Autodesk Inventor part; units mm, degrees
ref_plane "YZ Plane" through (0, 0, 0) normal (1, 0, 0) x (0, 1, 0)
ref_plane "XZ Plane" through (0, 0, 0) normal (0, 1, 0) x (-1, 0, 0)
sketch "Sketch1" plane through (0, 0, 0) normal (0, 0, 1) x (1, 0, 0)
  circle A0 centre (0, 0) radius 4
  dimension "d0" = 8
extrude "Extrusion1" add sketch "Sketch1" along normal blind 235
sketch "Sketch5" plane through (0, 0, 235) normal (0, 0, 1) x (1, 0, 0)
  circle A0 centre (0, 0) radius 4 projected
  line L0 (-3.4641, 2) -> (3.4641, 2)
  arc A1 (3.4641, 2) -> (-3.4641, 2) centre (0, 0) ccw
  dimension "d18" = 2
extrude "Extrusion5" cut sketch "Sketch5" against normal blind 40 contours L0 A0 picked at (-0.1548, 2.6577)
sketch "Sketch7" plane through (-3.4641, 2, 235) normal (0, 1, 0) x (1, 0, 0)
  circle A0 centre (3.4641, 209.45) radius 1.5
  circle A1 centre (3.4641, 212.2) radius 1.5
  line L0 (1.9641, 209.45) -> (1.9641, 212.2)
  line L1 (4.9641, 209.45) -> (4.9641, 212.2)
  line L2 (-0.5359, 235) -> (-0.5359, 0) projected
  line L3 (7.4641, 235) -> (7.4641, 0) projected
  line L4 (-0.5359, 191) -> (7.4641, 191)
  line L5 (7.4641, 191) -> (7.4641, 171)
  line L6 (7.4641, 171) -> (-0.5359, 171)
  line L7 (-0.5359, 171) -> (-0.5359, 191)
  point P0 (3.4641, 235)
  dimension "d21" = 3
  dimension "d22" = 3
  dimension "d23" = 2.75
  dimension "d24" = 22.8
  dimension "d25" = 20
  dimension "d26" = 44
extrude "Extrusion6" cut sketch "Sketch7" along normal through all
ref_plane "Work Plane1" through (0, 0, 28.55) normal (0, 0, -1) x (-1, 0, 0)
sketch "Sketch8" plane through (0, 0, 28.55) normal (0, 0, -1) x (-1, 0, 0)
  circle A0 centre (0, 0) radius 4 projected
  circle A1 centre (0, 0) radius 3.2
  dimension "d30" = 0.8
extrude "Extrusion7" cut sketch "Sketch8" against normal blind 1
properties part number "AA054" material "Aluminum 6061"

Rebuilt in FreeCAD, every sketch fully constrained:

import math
import FreeCAD as App
import Part
import Sketcher


def add_polygon(sketch, points):
    """Adds a closed chain of lines whose ends are joined by coincident constraints."""
    first, n = sketch.GeometryCount, len(points)
    for a, b in zip(points, points[1:] + points[:1]):
        sketch.addGeometry(Part.LineSegment(App.Vector(*a, 0), App.Vector(*b, 0)), False)
    for i in range(n):
        sketch.addConstraint(Sketcher.Constraint("Coincident", first + i, 2, first + (i + 1) % n, 1))

doc = App.newDocument("Part")
body = doc.addObject("PartDesign::Body", "Body")

# Sketch on XY plane
sketch1 = body.newObject("Sketcher::SketchObject", "Sketch")
sketch1.AttachmentSupport = (doc.getObject("XY_Plane"), [""])
sketch1.MapMode = "FlatFace"
sketch1.addGeometry(Part.Circle(App.Vector(0, 0, 0), App.Vector(0, 0, 1), 4), False)
sketch1.addConstraint([
    Sketcher.Constraint("Coincident", 0, 3, -1, 1),
    Sketcher.Constraint("Diameter", 0, 8.0),
])
pad1 = body.newObject("PartDesign::Pad", "Pad")
pad1.Profile = sketch1
pad1.Length = 235

# Sketch on XY plane
sketch2 = body.newObject("Sketcher::SketchObject", "Sketch001")
sketch2.AttachmentSupport = (doc.getObject("XY_Plane"), [""])
sketch2.MapMode = "FlatFace"
sketch2.AttachmentOffset = App.Placement(App.Vector(0, 0, 235), App.Rotation())
sketch2.addGeometry([
    Part.LineSegment(App.Vector(-3.5, 2, 0), App.Vector(3.5, 2, 0)),
    Part.ArcOfCircle(Part.Circle(App.Vector(0, 0, 0), App.Vector(0, 0, 1), 4), math.radians(30), math.radians(150)),
], False)
sketch2.addConstraint([
    Sketcher.Constraint("Coincident", 0, 1, 1, 2),
    Sketcher.Constraint("Coincident", 1, 1, 0, 2),
    Sketcher.Constraint("Horizontal", 0),
    Sketcher.Constraint("Coincident", 1, 3, -1, 1),
    Sketcher.Constraint("DistanceY", -1, 1, 0, 1, 2.0),
    Sketcher.Constraint("Radius", 1, 4.0),
])
pocket1 = body.newObject("PartDesign::Pocket", "Pocket")
pocket1.Profile = sketch2
pocket1.Length = 40

# Sketch on XZ plane
sketch3 = body.newObject("Sketcher::SketchObject", "Sketch002")
sketch3.AttachmentSupport = (doc.getObject("XZ_Plane"), [""])
sketch3.MapMode = "FlatFace"
sketch3.AttachmentOffset = App.Placement(App.Vector(0, 0, -2), App.Rotation())
sketch3.addGeometry(Part.ArcOfCircle(Part.Circle(App.Vector(0, 25.6, 0), App.Vector(0, 0, 1), 1.5), math.radians(0), math.radians(180)), False)  # 0
sketch3.addGeometry(Part.LineSegment(App.Vector(1.5, 25.6, 0), App.Vector(1.5, 22.8, 0)), False)  # 1
sketch3.addGeometry(Part.ArcOfCircle(Part.Circle(App.Vector(0, 22.8, 0), App.Vector(0, 0, 1), 1.5), math.radians(180), math.radians(360)), False)  # 2
sketch3.addGeometry(Part.LineSegment(App.Vector(-1.5, 22.8, 0), App.Vector(-1.5, 25.6, 0)), False)  # 3
add_polygon(sketch3, [(4, 44), (-4, 44), (-4, 64), (4, 64)])  # lines 4-7
sketch3.addConstraint([
    Sketcher.Constraint("Tangent", 0, 1, 1, 1),
    Sketcher.Constraint("Tangent", 1, 2, 2, 2),
    Sketcher.Constraint("Tangent", 2, 1, 3, 1),
    Sketcher.Constraint("Tangent", 3, 2, 0, 2),
    Sketcher.Constraint("Vertical", 1),
    Sketcher.Constraint("Vertical", 3),
    Sketcher.Constraint("Horizontal", 4),
    Sketcher.Constraint("Vertical", 5),
    Sketcher.Constraint("Horizontal", 6),
    Sketcher.Constraint("Vertical", 7),
    Sketcher.Constraint("PointOnObject", 0, 3, -2),
    Sketcher.Constraint("Radius", 0, 1.5),
    Sketcher.Constraint("DistanceY", 5, 1, 5, 2, 20.0),
    Sketcher.Constraint("DistanceY", -1, 1, 4, 2, 44.0),
    Sketcher.Constraint("DistanceY", 1, 2, 1, 1, 2.75),
    Sketcher.Constraint("DistanceY", -1, 1, 2, 3, 22.8),
    Sketcher.Constraint("DistanceX", 4, 2, 4, 1, 8.0),
    Sketcher.Constraint("DistanceX", 4, 2, -1, 1, 4.0),
])
pocket2 = body.newObject("PartDesign::Pocket", "Pocket001")
pocket2.Profile = sketch3
pocket2.Type = "ThroughAll"

# Sketch on XY plane
sketch4 = body.newObject("Sketcher::SketchObject", "Sketch003")
sketch4.AttachmentSupport = (doc.getObject("XY_Plane"), [""])
sketch4.MapMode = "FlatFace"
sketch4.AttachmentOffset = App.Placement(App.Vector(0, 0, 28.55), App.Rotation())
sketch4.addGeometry([
    Part.Circle(App.Vector(0, 0, 0), App.Vector(0, 0, 1), 4),
    Part.Circle(App.Vector(0, 0, 0), App.Vector(0, 0, 1), 3.2),
], False)
sketch4.addConstraint([
    Sketcher.Constraint("Coincident", 0, 3, -1, 1),
    Sketcher.Constraint("Coincident", 1, 3, -1, 1),
    Sketcher.Constraint("Diameter", 0, 8.0),
    Sketcher.Constraint("Diameter", 1, 6.4),
])
pocket3 = body.newObject("PartDesign::Pocket", "Pocket002")
pocket3.Profile = sketch4
pocket3.Length = 1
pocket3.Reversed = True

doc.recompute()
